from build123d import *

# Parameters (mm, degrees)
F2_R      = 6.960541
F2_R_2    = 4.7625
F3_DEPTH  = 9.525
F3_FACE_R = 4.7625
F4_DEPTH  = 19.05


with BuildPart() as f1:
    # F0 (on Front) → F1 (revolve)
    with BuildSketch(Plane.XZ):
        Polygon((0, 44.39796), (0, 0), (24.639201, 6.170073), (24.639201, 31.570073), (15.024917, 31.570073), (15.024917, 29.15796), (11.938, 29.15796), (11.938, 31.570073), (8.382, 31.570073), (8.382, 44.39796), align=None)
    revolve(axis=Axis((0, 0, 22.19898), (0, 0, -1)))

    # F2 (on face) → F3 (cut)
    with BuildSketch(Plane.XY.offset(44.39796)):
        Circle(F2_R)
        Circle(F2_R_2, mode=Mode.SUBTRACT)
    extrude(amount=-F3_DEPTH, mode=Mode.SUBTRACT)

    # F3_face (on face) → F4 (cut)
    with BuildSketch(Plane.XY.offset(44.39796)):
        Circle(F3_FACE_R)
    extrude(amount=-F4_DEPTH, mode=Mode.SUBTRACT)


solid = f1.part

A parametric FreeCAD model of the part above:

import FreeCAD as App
import Part
import Sketcher
Q = App.Units.Quantity


def add_polygon(sketch, points):
    """Adds a closed chain of lines whose ends are joined by coincident constraints."""
    first, n = sketch.GeometryCount, len(points)
    for a, b in zip(points, points[1:] + points[:1]):
        sketch.addGeometry(Part.LineSegment(App.Vector(*a, 0), App.Vector(*b, 0)), False)
    for i in range(n):
        sketch.addConstraint(Sketcher.Constraint("Coincident", first + i, 2, first + (i + 1) % n, 1))

doc = App.newDocument("Part")
body = doc.addObject("PartDesign::Body", "Body")

# Sketch on XZ plane
sketch1 = body.newObject("Sketcher::SketchObject", "Sketch")
sketch1.AttachmentSupport = (doc.getObject("XZ_Plane"), [""])
sketch1.MapMode = "FlatFace"
add_polygon(sketch1, [(0, 44.39796), (0, 0), (24.639201, 6.170073), (24.639201, 31.570073), (15.024917, 31.570073), (15.024917, 29.15796), (11.938, 29.15796), (11.938, 31.570073), (8.382, 31.570073), (8.382, 44.39796)])  # lines 0-9
sketch1.addConstraint([
    Sketcher.Constraint("Vertical", 0),
    Sketcher.Constraint("Vertical", 2),
    Sketcher.Constraint("Horizontal", 3),
    Sketcher.Constraint("Vertical", 4),
    Sketcher.Constraint("Horizontal", 5),
    Sketcher.Constraint("Vertical", 6),
    Sketcher.Constraint("Horizontal", 7),
    Sketcher.Constraint("Vertical", 8),
    Sketcher.Constraint("Horizontal", 9),
    Sketcher.Constraint("Coincident", 0, 2, -1, 1),
    Sketcher.Constraint("Horizontal", 3, 2, 6, 2),
    Sketcher.Constraint("DistanceY", 2, 1, 2, 2, Q("1 in")),
    Sketcher.Constraint("Distance", 1, Q("1 in")),
    Sketcher.Constraint("DistanceX", 7, 2, 7, 1, Q("0.14 in")),
    Sketcher.Constraint("DistanceX", 9, 2, 9, 1, Q("0.33 in")),
    Sketcher.Constraint("DistanceY", 5, 2, 8, 2, Q("0.6 in")),
    Sketcher.Constraint("DistanceY", 0, 2, 0, 1, 44.39796),
    Sketcher.Constraint("DistanceX", -1, 1, 1, 2, 24.639201),
    Sketcher.Constraint("DistanceX", 3, 2, 3, 1, 9.614284),
])
revolution = body.newObject("PartDesign::Revolution", "Revolution")
revolution.Profile = sketch1
revolution.ReferenceAxis = (sketch1, ["V_Axis"])
revolution.Angle = 360

# Sketch on XY plane
sketch2 = body.newObject("Sketcher::SketchObject", "Sketch001")
sketch2.AttachmentSupport = (doc.getObject("XY_Plane"), [""])
sketch2.MapMode = "FlatFace"
sketch2.AttachmentOffset = App.Placement(App.Vector(0, 0, 44.39796), App.Rotation())
sketch2.addGeometry([
    Part.Circle(App.Vector(0, 0, 0), App.Vector(0, 0, 1), 6.960541),
    Part.Circle(App.Vector(0, 0, 0), App.Vector(0, 0, 1), 4.7625),
], False)
sketch2.addConstraint([
    Sketcher.Constraint("Coincident", 0, 3, -1, 1),
    Sketcher.Constraint("Coincident", 1, 3, -1, 1),
    Sketcher.Constraint("Diameter", 1, Q("0.375 in")),
    Sketcher.Constraint("Diameter", 0, 13.921082),
])
pocket1 = body.newObject("PartDesign::Pocket", "Pocket")
pocket1.Profile = sketch2
pocket1.Length = Q("0.375 in")

# Sketch on XY plane
sketch3 = body.newObject("Sketcher::SketchObject", "Sketch002")
sketch3.AttachmentSupport = (doc.getObject("XY_Plane"), [""])
sketch3.MapMode = "FlatFace"
sketch3.AttachmentOffset = App.Placement(App.Vector(0, 0, 44.39796), App.Rotation())
sketch3.addGeometry(Part.Circle(App.Vector(0, 0, 0), App.Vector(0, 0, 1), 4.7625), False)
sketch3.addConstraint([
    Sketcher.Constraint("Coincident", 0, 3, -1, 1),
    Sketcher.Constraint("Diameter", 0, Q("0.375 in")),
])
pocket2 = body.newObject("PartDesign::Pocket", "Pocket001")
pocket2.Profile = sketch3
pocket2.Length = Q("0.75 in")

doc.recompute()
